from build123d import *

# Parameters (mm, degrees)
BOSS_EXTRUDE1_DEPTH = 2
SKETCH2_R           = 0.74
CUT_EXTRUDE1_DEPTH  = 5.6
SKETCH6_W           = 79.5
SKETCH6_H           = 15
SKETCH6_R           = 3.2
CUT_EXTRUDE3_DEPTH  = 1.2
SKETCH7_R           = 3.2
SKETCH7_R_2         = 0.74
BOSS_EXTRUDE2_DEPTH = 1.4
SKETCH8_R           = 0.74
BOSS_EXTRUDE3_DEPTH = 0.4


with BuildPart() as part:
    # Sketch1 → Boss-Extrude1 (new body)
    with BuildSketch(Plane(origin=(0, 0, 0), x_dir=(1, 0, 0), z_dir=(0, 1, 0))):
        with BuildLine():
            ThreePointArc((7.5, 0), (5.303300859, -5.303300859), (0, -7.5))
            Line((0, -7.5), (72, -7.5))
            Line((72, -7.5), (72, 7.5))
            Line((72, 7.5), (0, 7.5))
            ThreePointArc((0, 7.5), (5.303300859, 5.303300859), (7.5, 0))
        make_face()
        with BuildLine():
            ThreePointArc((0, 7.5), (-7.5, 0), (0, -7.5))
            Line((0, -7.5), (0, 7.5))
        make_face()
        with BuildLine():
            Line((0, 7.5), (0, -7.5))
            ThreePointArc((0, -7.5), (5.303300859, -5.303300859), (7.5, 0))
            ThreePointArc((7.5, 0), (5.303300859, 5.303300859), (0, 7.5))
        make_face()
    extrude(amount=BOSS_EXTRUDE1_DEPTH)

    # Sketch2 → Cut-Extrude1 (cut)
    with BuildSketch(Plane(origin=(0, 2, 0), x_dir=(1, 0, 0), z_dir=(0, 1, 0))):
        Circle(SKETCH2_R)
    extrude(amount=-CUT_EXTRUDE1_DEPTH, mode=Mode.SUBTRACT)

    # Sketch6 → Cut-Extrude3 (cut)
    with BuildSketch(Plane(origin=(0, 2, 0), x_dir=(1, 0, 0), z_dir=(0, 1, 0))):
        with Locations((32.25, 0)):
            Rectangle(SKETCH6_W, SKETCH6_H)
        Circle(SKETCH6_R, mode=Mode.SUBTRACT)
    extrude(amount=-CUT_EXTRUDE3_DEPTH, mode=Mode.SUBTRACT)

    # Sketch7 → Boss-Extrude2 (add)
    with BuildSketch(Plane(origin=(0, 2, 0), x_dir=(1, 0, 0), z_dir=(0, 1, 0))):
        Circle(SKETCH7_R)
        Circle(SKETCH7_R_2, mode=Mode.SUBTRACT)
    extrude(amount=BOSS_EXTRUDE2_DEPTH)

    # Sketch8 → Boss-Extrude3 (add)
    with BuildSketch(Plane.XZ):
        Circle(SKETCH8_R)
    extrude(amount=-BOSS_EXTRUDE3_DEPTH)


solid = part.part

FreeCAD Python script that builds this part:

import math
import FreeCAD as App
import Part
import Sketcher

V = App.Vector

doc = App.newDocument("Part")
body = doc.addObject("PartDesign::Body", "Body")

sketch1 = doc.addObject("Sketcher::SketchObject", "Sketch")
body.addObject(sketch1)
sketch1.AttachmentSupport = (doc.XZ_Plane, [""])
sketch1.MapMode = "FlatFace"
sketch1.addGeometry([
    Part.LineSegment(V(72, 8, 0), V(72, -8, 0)),
    Part.LineSegment(V(72, -8, 0), V(0, -8, 0)),
    Part.ArcOfCircle(Part.Circle(V(0, 0, 0), V(0, 0, 1), 8), math.radians(90), math.radians(270)),
    Part.LineSegment(V(0, 8, 0), V(72, 8, 0)),
], False)
sketch1.addConstraint([
    Sketcher.Constraint("Coincident", 0, 2, 1, 1),
    Sketcher.Constraint("Tangent", 1, 2, 2, 2),
    Sketcher.Constraint("Tangent", 2, 1, 3, 1),
    Sketcher.Constraint("Coincident", 3, 2, 0, 1),
    Sketcher.Constraint("Vertical", 0),
    Sketcher.Constraint("Horizontal", 1),
    Sketcher.Constraint("Horizontal", 3),
    Sketcher.Constraint("Coincident", 2, 3, -1, 1),
    Sketcher.Constraint("Radius", 2, 7.5),
    Sketcher.Constraint("DistanceX", 1, 2, 1, 1, 72.0),
])
pad1 = doc.addObject("PartDesign::Pad", "Pad")
body.addObject(pad1)
pad1.Profile = sketch1
pad1.Length = 2
pad1.Reversed = True

sketch2 = doc.addObject("Sketcher::SketchObject", "Sketch001")
body.addObject(sketch2)
sketch2.AttachmentSupport = (doc.XZ_Plane, [""])
sketch2.MapMode = "FlatFace"
sketch2.AttachmentOffset = App.Placement(V(0, 0, -2), App.Rotation())
sketch2.addGeometry(Part.Circle(V(0, 0, 0), V(0, 0, 1), 0.7), False)
sketch2.addConstraint([
    Sketcher.Constraint("Coincident", 0, 3, -1, 1),
    Sketcher.Constraint("Diameter", 0, 1.48),
])
pocket1 = doc.addObject("PartDesign::Pocket", "Pocket")
body.addObject(pocket1)
pocket1.Profile = sketch2
pocket1.Length = 5.6
pocket1.Reversed = True

sketch3 = doc.addObject("Sketcher::SketchObject", "Sketch002")
body.addObject(sketch3)
sketch3.AttachmentSupport = (doc.XZ_Plane, [""])
sketch3.MapMode = "FlatFace"
sketch3.AttachmentOffset = App.Placement(V(0, 0, -2), App.Rotation())
sketch3.addGeometry([
    Part.LineSegment(V(-7.5, -7.5, 0), V(-7.5, 7.5, 0)),
    Part.LineSegment(V(-7.5, 7.5, 0), V(72, 7.5, 0)),
    Part.LineSegment(V(72, 7.5, 0), V(72, -7.5, 0)),
    Part.LineSegment(V(72, -7.5, 0), V(-7.5, -7.5, 0)),
    Part.Circle(V(0, 0, 0), V(0, 0, 1), 3.2),
], False)
sketch3.addConstraint([
    Sketcher.Constraint("Coincident", 0, 2, 1, 1),
    Sketcher.Constraint("Coincident", 1, 2, 2, 1),
    Sketcher.Constraint("Coincident", 2, 2, 3, 1),
    Sketcher.Constraint("Coincident", 3, 2, 0, 1),
    Sketcher.Constraint("Vertical", 0),
    Sketcher.Constraint("Horizontal", 1),
    Sketcher.Constraint("Vertical", 2),
    Sketcher.Constraint("Horizontal", 3),
    Sketcher.Constraint("Coincident", 4, 3, -1, 1),
    Sketcher.Constraint("Diameter", 4, 6.4),
    Sketcher.Constraint("DistanceY", 0, 1, 0, 2, 15.0),
    Sketcher.Constraint("DistanceX", 1, 1, 1, 2, 79.5),
    Sketcher.Constraint("DistanceX", -1, 1, 1, 2, 72.0),
    Sketcher.Constraint("DistanceY", -1, 1, 0, 2, 7.5),
])
pocket2 = doc.addObject("PartDesign::Pocket", "Pocket001")
body.addObject(pocket2)
pocket2.Profile = sketch3
pocket2.Length = 1.2
pocket2.Reversed = True

sketch4 = doc.addObject("Sketcher::SketchObject", "Sketch003")
body.addObject(sketch4)
sketch4.AttachmentSupport = (doc.XZ_Plane, [""])
sketch4.MapMode = "FlatFace"
sketch4.AttachmentOffset = App.Placement(V(0, 0, -2), App.Rotation())
sketch4.addGeometry([
    Part.Circle(V(0, 0, 0), V(0, 0, 1), 3.2),
    Part.Circle(V(0, 0, 0), V(0, 0, 1), 0.7),
], False)
sketch4.addConstraint([
    Sketcher.Constraint("Coincident", 0, 3, -1, 1),
    Sketcher.Constraint("Coincident", 1, 3, -1, 1),
    Sketcher.Constraint("Diameter", 0, 6.4),
    Sketcher.Constraint("Diameter", 1, 1.48),
])
pad2 = doc.addObject("PartDesign::Pad", "Pad001")
body.addObject(pad2)
pad2.Profile = sketch4
pad2.Length = 1.4
pad2.Reversed = True

sketch5 = doc.addObject("Sketcher::SketchObject", "Sketch004")
body.addObject(sketch5)
sketch5.AttachmentSupport = (doc.XZ_Plane, [""])
sketch5.MapMode = "FlatFace"
sketch5.addGeometry(Part.Circle(V(0, 0, 0), V(0, 0, 1), 0.7), False)
sketch5.addConstraint([
    Sketcher.Constraint("Coincident", 0, 3, -1, 1),
    Sketcher.Constraint("Diameter", 0, 1.48),
])
pad3 = doc.addObject("PartDesign::Pad", "Pad002")
body.addObject(pad3)
pad3.Profile = sketch5
pad3.Length = 0.4
pad3.Reversed = True

doc.recompute()
